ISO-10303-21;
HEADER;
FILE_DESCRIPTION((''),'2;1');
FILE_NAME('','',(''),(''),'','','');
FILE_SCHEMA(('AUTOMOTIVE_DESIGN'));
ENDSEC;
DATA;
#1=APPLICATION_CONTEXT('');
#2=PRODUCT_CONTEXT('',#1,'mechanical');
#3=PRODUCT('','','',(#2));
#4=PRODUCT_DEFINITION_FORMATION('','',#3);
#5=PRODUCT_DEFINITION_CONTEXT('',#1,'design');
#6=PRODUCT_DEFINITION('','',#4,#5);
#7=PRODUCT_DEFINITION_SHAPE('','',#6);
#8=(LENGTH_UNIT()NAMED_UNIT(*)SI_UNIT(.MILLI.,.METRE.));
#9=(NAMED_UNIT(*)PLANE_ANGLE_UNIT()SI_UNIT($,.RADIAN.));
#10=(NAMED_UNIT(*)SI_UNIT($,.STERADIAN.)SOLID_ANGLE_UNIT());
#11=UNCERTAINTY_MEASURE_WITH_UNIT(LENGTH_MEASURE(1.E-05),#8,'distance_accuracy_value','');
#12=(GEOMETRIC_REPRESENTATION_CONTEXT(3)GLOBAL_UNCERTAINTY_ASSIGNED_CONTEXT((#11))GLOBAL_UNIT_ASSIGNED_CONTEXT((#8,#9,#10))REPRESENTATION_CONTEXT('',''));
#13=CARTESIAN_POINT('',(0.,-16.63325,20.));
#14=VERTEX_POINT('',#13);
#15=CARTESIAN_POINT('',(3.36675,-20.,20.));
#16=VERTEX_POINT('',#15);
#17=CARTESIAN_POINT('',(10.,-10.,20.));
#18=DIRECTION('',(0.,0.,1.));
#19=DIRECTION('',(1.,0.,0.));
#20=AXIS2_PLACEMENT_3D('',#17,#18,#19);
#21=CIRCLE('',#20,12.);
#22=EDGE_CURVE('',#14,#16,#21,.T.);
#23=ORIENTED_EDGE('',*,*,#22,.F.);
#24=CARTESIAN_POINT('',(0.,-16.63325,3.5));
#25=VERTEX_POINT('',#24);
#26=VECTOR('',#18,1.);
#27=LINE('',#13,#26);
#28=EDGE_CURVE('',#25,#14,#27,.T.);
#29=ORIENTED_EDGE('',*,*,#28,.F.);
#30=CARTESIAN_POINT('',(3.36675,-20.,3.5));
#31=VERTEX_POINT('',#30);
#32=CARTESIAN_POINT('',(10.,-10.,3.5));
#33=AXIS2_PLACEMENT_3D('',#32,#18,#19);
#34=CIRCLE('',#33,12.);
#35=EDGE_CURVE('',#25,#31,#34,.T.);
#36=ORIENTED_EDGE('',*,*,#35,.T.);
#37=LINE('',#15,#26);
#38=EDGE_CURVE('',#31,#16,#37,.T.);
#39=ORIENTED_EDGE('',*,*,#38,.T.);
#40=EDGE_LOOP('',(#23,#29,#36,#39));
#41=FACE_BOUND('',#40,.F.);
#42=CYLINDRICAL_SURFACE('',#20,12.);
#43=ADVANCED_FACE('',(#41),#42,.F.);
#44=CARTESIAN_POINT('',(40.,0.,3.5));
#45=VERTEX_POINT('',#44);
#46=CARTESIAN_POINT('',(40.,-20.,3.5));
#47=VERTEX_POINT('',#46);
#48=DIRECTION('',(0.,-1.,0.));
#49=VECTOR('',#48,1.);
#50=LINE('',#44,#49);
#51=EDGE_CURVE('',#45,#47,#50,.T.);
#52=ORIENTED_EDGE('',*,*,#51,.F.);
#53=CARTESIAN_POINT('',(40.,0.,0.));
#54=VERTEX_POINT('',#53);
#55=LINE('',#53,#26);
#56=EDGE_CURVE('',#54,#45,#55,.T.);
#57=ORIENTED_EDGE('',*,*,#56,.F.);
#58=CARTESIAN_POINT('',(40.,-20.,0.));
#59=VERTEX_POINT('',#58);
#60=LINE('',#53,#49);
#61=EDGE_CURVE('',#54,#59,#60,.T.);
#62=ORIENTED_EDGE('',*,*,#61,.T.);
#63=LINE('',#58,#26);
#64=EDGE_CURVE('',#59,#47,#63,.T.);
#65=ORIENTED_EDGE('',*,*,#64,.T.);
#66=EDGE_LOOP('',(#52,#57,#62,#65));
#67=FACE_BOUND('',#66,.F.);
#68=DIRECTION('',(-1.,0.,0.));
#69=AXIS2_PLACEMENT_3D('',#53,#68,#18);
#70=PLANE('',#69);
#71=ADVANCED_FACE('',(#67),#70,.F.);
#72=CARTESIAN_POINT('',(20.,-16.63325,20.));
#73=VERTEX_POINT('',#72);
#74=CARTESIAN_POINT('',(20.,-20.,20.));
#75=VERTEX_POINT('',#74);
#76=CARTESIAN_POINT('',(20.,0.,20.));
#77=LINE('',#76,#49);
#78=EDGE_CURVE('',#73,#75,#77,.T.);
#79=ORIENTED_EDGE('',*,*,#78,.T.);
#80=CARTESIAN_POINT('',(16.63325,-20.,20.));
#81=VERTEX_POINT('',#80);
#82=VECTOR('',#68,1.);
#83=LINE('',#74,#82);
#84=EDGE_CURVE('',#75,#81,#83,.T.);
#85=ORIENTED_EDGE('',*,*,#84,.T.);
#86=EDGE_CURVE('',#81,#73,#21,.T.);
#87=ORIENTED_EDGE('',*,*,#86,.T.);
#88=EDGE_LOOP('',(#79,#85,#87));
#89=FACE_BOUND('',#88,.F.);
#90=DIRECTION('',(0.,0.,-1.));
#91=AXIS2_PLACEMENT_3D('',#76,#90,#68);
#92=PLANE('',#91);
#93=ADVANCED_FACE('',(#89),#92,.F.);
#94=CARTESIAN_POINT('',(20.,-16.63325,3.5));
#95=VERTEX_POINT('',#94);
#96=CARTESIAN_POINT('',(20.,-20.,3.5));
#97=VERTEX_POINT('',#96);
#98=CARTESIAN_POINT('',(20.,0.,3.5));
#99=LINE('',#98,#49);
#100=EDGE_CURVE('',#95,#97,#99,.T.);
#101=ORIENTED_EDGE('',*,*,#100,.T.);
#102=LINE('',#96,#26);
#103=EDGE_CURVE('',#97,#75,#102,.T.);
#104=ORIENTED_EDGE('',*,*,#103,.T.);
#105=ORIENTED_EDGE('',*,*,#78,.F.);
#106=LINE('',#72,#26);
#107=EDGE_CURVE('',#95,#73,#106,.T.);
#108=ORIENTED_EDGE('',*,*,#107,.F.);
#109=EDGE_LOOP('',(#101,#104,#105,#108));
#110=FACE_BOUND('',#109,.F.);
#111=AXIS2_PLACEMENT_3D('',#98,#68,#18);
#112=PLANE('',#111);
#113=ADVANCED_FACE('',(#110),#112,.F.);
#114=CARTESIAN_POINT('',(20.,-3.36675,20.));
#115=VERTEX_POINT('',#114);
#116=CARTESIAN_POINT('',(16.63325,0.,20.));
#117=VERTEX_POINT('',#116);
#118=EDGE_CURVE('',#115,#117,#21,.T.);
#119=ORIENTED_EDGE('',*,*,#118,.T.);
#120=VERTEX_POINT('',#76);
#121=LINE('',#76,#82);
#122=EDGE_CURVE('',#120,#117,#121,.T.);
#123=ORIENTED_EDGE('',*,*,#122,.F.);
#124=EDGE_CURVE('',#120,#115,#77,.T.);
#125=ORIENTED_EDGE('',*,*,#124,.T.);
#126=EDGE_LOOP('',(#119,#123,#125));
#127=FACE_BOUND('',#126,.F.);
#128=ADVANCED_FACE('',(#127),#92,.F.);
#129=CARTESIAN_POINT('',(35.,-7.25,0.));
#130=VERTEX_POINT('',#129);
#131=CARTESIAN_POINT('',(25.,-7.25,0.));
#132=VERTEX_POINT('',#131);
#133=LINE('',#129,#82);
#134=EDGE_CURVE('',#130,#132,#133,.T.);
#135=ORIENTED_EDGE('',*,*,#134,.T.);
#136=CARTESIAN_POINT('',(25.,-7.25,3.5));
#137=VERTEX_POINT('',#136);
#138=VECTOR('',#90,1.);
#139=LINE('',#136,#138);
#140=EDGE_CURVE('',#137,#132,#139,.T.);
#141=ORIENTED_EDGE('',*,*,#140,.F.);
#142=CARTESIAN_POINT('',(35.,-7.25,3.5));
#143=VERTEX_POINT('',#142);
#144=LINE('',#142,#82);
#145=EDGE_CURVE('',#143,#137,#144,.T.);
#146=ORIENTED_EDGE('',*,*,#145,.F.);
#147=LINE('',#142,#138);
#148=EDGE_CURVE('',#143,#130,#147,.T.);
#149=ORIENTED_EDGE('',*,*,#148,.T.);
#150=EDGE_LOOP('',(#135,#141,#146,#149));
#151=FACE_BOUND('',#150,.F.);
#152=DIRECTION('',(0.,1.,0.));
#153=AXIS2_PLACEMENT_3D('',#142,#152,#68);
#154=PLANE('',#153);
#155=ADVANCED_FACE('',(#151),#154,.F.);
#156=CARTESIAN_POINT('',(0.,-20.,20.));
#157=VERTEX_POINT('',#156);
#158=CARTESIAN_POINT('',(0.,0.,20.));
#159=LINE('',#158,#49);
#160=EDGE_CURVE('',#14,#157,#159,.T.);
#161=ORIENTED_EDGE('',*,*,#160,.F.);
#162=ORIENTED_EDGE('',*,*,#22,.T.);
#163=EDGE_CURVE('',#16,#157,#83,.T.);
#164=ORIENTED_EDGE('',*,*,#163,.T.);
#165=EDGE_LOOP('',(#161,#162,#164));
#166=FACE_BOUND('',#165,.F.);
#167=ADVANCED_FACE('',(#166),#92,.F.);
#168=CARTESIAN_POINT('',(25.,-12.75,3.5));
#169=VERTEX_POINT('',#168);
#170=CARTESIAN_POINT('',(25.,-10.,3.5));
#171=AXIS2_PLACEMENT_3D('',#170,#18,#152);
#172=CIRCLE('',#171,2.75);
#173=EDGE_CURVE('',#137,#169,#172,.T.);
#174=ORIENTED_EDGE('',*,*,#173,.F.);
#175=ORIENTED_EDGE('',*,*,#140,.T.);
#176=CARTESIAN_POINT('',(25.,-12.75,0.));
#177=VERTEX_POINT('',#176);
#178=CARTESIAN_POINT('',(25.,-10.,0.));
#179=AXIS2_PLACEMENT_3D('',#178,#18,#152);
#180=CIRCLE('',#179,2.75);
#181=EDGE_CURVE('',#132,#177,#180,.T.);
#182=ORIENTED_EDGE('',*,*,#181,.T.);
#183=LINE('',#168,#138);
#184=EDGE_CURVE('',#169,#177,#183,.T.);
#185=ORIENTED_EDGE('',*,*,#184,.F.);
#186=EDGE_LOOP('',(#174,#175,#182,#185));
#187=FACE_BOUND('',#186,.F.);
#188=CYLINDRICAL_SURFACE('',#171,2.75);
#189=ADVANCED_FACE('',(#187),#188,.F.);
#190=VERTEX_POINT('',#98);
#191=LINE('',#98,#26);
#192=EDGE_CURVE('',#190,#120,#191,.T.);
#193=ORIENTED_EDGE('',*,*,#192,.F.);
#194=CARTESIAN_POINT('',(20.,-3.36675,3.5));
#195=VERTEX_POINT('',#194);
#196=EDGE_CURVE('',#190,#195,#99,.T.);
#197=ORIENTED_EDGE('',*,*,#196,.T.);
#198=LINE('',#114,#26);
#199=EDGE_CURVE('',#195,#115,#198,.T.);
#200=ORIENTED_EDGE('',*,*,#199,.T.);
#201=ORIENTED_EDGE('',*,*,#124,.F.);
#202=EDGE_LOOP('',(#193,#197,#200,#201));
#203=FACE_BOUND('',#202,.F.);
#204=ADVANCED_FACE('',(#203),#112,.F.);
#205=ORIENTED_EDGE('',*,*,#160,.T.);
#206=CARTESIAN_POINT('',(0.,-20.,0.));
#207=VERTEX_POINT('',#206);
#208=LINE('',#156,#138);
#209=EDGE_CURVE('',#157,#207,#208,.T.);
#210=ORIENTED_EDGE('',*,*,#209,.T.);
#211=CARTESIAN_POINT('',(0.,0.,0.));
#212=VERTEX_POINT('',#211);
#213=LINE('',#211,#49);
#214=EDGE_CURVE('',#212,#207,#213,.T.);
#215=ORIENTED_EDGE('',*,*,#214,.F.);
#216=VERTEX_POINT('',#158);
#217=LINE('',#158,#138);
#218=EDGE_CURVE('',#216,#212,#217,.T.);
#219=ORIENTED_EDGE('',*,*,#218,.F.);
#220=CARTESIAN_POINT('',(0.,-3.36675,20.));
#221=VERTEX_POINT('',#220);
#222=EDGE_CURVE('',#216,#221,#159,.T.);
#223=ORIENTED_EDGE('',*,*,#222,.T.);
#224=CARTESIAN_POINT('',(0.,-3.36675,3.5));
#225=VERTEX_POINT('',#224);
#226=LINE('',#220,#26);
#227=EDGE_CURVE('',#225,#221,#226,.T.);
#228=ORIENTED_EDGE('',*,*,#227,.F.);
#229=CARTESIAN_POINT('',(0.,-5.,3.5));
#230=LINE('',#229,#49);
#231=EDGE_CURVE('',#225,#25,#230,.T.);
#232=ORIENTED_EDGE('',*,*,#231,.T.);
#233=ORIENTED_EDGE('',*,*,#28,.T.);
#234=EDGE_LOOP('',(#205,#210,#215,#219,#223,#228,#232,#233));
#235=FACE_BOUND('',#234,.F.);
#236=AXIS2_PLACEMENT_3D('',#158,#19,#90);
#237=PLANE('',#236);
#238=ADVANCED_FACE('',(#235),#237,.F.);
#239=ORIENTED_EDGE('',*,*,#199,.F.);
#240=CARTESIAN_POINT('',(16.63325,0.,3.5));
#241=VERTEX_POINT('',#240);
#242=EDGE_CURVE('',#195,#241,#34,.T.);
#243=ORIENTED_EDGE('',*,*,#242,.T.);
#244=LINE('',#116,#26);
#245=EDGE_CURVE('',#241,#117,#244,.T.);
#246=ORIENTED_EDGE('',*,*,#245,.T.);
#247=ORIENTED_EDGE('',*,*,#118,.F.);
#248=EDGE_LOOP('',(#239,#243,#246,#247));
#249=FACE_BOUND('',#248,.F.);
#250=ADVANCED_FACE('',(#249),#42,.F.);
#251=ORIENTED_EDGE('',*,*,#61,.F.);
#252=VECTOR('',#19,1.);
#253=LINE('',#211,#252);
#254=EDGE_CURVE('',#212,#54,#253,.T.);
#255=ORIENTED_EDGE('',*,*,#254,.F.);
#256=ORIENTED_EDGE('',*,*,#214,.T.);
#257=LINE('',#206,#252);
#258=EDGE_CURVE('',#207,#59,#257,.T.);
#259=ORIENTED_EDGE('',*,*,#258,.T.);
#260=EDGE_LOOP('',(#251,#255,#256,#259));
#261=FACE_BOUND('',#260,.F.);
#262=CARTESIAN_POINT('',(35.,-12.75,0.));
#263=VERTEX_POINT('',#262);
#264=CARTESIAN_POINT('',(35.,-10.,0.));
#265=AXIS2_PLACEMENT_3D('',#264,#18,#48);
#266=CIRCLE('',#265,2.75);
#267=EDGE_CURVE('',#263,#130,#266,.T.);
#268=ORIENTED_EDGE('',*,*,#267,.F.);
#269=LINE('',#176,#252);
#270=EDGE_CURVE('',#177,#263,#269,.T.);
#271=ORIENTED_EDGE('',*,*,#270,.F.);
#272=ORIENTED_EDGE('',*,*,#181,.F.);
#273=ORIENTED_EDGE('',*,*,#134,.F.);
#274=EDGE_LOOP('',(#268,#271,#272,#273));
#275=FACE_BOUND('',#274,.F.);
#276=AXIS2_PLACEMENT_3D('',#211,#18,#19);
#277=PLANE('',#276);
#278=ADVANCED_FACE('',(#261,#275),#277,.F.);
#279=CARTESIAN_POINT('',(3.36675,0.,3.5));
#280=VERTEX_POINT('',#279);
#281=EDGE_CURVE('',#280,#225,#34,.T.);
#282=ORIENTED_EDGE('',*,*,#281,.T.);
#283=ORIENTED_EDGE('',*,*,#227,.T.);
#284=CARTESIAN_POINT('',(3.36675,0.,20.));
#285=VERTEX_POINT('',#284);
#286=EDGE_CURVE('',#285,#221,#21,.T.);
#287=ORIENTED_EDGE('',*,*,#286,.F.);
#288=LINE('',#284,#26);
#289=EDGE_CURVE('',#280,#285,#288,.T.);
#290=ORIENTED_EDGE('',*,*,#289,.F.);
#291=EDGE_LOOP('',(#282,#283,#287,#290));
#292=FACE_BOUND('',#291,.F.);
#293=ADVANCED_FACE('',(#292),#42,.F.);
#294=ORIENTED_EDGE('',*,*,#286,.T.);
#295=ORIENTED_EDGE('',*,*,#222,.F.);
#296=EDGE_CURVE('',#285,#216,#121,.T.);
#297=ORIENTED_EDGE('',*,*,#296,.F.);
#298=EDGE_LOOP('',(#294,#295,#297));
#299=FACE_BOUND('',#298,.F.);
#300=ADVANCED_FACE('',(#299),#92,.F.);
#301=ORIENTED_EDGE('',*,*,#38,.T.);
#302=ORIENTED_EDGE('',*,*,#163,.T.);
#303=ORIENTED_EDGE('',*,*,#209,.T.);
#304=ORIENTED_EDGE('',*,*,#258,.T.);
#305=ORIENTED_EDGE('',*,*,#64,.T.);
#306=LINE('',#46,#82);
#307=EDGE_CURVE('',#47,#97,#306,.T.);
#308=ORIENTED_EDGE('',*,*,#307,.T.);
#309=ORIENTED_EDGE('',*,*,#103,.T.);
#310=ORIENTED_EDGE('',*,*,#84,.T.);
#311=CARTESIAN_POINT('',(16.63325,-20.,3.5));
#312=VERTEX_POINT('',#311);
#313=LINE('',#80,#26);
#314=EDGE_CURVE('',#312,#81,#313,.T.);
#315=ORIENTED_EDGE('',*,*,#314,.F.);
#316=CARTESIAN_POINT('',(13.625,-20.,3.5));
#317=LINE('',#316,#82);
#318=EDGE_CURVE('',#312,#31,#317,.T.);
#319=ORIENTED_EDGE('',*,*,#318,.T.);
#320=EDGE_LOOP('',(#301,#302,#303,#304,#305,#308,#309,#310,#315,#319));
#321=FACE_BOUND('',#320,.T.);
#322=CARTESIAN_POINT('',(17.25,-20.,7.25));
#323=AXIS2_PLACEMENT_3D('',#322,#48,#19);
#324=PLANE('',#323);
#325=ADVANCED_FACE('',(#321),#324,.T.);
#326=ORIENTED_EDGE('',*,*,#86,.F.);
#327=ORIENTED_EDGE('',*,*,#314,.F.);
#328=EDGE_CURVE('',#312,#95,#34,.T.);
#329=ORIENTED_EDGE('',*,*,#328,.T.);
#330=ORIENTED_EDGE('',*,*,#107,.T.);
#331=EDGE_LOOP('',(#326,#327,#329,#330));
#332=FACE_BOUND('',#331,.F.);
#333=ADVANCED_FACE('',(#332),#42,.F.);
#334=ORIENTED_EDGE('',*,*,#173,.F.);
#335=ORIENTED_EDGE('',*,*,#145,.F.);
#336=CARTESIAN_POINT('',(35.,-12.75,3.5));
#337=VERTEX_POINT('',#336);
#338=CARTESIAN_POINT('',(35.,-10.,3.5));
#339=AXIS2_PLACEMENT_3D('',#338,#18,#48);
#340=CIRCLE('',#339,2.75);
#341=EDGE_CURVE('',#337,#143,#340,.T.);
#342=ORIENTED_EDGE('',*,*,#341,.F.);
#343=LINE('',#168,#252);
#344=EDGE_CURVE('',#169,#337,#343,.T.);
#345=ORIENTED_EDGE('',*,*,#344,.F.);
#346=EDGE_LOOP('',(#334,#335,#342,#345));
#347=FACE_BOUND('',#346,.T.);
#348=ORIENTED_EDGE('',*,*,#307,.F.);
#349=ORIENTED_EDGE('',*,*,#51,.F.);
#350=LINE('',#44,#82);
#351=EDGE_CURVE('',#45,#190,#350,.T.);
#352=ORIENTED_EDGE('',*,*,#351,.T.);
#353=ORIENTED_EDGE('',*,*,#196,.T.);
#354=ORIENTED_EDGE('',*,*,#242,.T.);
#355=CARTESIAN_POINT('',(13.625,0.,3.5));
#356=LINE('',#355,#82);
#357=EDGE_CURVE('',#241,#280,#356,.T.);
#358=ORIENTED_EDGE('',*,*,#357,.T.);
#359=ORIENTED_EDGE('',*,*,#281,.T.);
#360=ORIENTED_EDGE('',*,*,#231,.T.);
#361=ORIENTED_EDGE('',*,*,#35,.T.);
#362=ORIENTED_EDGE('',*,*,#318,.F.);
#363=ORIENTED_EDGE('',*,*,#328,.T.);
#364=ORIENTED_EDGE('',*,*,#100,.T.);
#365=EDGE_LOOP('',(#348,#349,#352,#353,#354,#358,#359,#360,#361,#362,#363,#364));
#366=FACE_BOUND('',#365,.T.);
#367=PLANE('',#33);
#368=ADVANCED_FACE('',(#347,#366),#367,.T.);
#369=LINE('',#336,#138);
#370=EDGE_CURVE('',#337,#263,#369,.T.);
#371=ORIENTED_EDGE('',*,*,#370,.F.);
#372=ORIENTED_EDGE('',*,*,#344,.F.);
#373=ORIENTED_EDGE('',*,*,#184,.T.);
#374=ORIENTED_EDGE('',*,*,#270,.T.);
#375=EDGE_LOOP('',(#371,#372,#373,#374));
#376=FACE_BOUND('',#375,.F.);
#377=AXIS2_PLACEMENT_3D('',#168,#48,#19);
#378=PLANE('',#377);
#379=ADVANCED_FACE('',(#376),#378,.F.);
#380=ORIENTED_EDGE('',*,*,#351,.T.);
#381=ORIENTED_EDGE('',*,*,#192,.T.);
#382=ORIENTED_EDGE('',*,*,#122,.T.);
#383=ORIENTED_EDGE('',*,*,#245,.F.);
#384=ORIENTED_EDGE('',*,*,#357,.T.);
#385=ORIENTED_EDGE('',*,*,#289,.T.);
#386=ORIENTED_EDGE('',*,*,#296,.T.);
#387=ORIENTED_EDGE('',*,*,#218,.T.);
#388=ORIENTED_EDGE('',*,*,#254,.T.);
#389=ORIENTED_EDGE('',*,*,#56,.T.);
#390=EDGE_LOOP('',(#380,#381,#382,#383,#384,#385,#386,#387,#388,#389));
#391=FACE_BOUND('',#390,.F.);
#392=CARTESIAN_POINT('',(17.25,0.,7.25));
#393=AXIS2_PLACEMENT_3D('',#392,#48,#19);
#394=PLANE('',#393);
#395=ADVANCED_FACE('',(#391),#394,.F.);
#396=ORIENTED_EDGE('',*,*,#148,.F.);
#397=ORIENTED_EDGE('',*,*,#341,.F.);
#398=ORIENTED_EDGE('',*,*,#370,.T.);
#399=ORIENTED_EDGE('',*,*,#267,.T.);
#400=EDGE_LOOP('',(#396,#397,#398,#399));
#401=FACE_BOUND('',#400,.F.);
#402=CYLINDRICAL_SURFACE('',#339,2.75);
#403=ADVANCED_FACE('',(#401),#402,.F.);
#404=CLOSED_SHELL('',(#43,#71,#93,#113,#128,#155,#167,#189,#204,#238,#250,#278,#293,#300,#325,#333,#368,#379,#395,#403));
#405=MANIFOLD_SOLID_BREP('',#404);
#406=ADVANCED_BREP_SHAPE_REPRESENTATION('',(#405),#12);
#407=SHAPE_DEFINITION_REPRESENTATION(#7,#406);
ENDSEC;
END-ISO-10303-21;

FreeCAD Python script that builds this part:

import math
import FreeCAD as App
import Part
import Sketcher

doc = App.newDocument("Part")
body = doc.addObject("PartDesign::Body", "Body")

# Sketch on XZ plane
sketch1 = body.newObject("Sketcher::SketchObject", "Sketch")
sketch1.AttachmentSupport = (doc.getObject("XZ_Plane"), [""])
sketch1.MapMode = "FlatFace"
sketch1.addGeometry([
    Part.LineSegment(App.Vector(0, 20, 0), App.Vector(0, 0, 0)),  # 0
    Part.LineSegment(App.Vector(0, 0, 0), App.Vector(40, 0, 0)),  # 1
    Part.LineSegment(App.Vector(40, 0, 0), App.Vector(40, 3.5, 0)),  # 2
    Part.LineSegment(App.Vector(40, 3.5, 0), App.Vector(20, 3.5, 0)),  # 3
    Part.LineSegment(App.Vector(20, 3.5, 0), App.Vector(20, 20, 0)),  # 4
    Part.LineSegment(App.Vector(20, 20, 0), App.Vector(0, 20, 0)),  # 5
], False)
sketch1.addConstraint([
    Sketcher.Constraint("Coincident", 0, 2, 1, 1),
    Sketcher.Constraint("Coincident", 1, 2, 2, 1),
    Sketcher.Constraint("Coincident", 2, 2, 3, 1),
    Sketcher.Constraint("Coincident", 3, 2, 4, 1),
    Sketcher.Constraint("Coincident", 4, 2, 5, 1),
    Sketcher.Constraint("Coincident", 5, 2, 0, 1),
    Sketcher.Constraint("Vertical", 0),
    Sketcher.Constraint("Horizontal", 1),
    Sketcher.Constraint("Vertical", 2),
    Sketcher.Constraint("Horizontal", 3),
    Sketcher.Constraint("Vertical", 4),
    Sketcher.Constraint("Horizontal", 5),
    Sketcher.Constraint("Coincident", 0, 2, -1, 1),
    Sketcher.Constraint("Equal", 3, 5),
    Sketcher.Constraint("Equal", 5, 0),
    Sketcher.Constraint("DistanceX", 1, 1, 1, 2, 40.0),
    Sketcher.Constraint("DistanceY", 2, 1, 2, 2, 3.5),
])
pad1 = body.newObject("PartDesign::Pad", "Pad")
pad1.Profile = sketch1
pad1.Length = 20

# Sketch on XY plane
sketch2 = body.newObject("Sketcher::SketchObject", "Sketch001")
sketch2.AttachmentSupport = (doc.getObject("XY_Plane"), [""])
sketch2.MapMode = "FlatFace"
sketch2.AttachmentOffset = App.Placement(App.Vector(0, 0, 20), App.Rotation())
sketch2.addGeometry(Part.Circle(App.Vector(10, -10, 0), App.Vector(0, 0, 1), 12), False)
sketch2.addConstraint([
    Sketcher.Constraint("Diameter", 0, 24.0),
    Sketcher.Constraint("DistanceX", -1, 1, 0, 3, 10.0),
    Sketcher.Constraint("DistanceY", 0, 3, -1, 1, 10.0),
])
pocket1 = body.newObject("PartDesign::Pocket", "Pocket")
pocket1.Profile = sketch2
pocket1.Length = 16.5

# Sketch on XY plane
sketch3 = body.newObject("Sketcher::SketchObject", "Sketch002")
sketch3.AttachmentSupport = (doc.getObject("XY_Plane"), [""])
sketch3.MapMode = "FlatFace"
sketch3.AttachmentOffset = App.Placement(App.Vector(0, 0, 3.5), App.Rotation())
sketch3.addGeometry([
    Part.ArcOfCircle(Part.Circle(App.Vector(35, -10, 0), App.Vector(0, 0, 1), 2.75), math.radians(-90), math.radians(90)),
    Part.LineSegment(App.Vector(35, -7.25, 0), App.Vector(25, -7.25, 0)),
    Part.ArcOfCircle(Part.Circle(App.Vector(25, -10, 0), App.Vector(0, 0, 1), 2.75), math.radians(90), math.radians(270)),
    Part.LineSegment(App.Vector(25, -12.75, 0), App.Vector(35, -12.75, 0)),
], False)
sketch3.addConstraint([
    Sketcher.Constraint("Tangent", 0, 2, 1, 1),
    Sketcher.Constraint("Tangent", 1, 2, 2, 1),
    Sketcher.Constraint("Tangent", 2, 2, 3, 1),
    Sketcher.Constraint("Tangent", 3, 2, 0, 1),
    Sketcher.Constraint("Horizontal", 1),
    Sketcher.Constraint("Horizontal", 3),
    Sketcher.Constraint("DistanceX", 1, 2, 1, 1, 10.0),
    Sketcher.Constraint("Radius", 0, 2.75),
    Sketcher.Constraint("DistanceX", -1, 1, 0, 3, 35.0),
    Sketcher.Constraint("DistanceY", 0, 3, -1, 1, 10.0),
])
pocket2 = body.newObject("PartDesign::Pocket", "Pocket001")
pocket2.Profile = sketch3
pocket2.Type = "ThroughAll"

doc.recompute()
